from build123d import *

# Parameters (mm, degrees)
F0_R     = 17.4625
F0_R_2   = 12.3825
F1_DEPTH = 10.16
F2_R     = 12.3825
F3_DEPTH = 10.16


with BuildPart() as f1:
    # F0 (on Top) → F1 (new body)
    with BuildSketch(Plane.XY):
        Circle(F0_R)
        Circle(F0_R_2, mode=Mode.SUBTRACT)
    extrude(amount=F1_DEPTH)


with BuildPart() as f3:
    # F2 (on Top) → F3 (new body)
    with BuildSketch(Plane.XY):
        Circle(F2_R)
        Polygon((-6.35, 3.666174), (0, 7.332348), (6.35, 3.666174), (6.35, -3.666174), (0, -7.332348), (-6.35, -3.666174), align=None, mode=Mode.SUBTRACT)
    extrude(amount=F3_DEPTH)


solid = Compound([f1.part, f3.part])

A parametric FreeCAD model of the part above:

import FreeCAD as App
import Part
import Sketcher

V = App.Vector
Q = App.Units.Quantity


def add_polygon(sketch, points):
    """Adds a closed chain of lines whose ends are joined by coincident constraints."""
    first, n = sketch.GeometryCount, len(points)
    for a, b in zip(points, points[1:] + points[:1]):
        sketch.addGeometry(Part.LineSegment(App.Vector(*a, 0), App.Vector(*b, 0)), False)
    for i in range(n):
        sketch.addConstraint(Sketcher.Constraint("Coincident", first + i, 2, first + (i + 1) % n, 1))

doc = App.newDocument("Part")
body = doc.addObject("PartDesign::Body", "Body")

sketch1 = body.newObject("Sketcher::SketchObject", "Sketch")
sketch1.AttachmentSupport = (doc.getObject("XY_Plane"), [""])
sketch1.MapMode = "FlatFace"
sketch1.addGeometry([
    Part.Circle(V(0, 0, 0), V(0, 0, 1), 17.4625),
    Part.Circle(V(0, 0, 0), V(0, 0, 1), 12.3825),
], False)
sketch1.addConstraint([
    Sketcher.Constraint("Coincident", 0, 3, -1, 1),
    Sketcher.Constraint("Coincident", 1, 3, -1, 1),
    Sketcher.Constraint("Diameter", 0, Q("1.375 in")),
    Sketcher.Constraint("Diameter", 1, Q("0.975 in")),
])
pad1 = body.newObject("PartDesign::Pad", "Pad")
pad1.Profile = sketch1
pad1.Length = Q("0.4 in")
body2 = doc.addObject("PartDesign::Body", "Body001")

sketch2 = body2.newObject("Sketcher::SketchObject", "Sketch001")
sketch2.AttachmentSupport = (doc.getObject("XY_Plane001"), [""])
sketch2.MapMode = "FlatFace"
sketch2.addGeometry(Part.Circle(V(0, 0, 0), V(0, 0, 1), 12.3825), False)
add_polygon(sketch2, [(-6.35, -3.666174), (-6.35, 3.666174), (0, 7.332348), (6.35, 3.666174), (6.35, -3.666174), (0, -7.332348)])
sketch2.addConstraint([
    Sketcher.Constraint("Vertical", 1),
    Sketcher.Constraint("Vertical", 4),
    Sketcher.Constraint("Coincident", 0, 3, -1, 1),
    Sketcher.Constraint("Symmetric", 1, 2, 4, 2, -1, 1),
    Sketcher.Constraint("Symmetric", 2, 2, 5, 2, -1, 1),
    Sketcher.Constraint("PointOnObject", 2, 2, -2),
    Sketcher.Constraint("Parallel", 3, 6),
    Sketcher.Constraint("Horizontal", 1, 2, 3, 2),
    Sketcher.Constraint("Diameter", 0, Q("0.975 in")),
    Sketcher.Constraint("Angle", 2, Q("29.999999 deg")),
    Sketcher.Constraint("DistanceX", 1, 2, 3, 2, Q("0.5 in")),
    Sketcher.Constraint("DistanceY", 1, 1, 1, 2, Q("7.332348 mm")),
])
pad2 = body2.newObject("PartDesign::Pad", "Pad001")
pad2.Profile = sketch2
pad2.Length = Q("0.4 in")

doc.recompute()
